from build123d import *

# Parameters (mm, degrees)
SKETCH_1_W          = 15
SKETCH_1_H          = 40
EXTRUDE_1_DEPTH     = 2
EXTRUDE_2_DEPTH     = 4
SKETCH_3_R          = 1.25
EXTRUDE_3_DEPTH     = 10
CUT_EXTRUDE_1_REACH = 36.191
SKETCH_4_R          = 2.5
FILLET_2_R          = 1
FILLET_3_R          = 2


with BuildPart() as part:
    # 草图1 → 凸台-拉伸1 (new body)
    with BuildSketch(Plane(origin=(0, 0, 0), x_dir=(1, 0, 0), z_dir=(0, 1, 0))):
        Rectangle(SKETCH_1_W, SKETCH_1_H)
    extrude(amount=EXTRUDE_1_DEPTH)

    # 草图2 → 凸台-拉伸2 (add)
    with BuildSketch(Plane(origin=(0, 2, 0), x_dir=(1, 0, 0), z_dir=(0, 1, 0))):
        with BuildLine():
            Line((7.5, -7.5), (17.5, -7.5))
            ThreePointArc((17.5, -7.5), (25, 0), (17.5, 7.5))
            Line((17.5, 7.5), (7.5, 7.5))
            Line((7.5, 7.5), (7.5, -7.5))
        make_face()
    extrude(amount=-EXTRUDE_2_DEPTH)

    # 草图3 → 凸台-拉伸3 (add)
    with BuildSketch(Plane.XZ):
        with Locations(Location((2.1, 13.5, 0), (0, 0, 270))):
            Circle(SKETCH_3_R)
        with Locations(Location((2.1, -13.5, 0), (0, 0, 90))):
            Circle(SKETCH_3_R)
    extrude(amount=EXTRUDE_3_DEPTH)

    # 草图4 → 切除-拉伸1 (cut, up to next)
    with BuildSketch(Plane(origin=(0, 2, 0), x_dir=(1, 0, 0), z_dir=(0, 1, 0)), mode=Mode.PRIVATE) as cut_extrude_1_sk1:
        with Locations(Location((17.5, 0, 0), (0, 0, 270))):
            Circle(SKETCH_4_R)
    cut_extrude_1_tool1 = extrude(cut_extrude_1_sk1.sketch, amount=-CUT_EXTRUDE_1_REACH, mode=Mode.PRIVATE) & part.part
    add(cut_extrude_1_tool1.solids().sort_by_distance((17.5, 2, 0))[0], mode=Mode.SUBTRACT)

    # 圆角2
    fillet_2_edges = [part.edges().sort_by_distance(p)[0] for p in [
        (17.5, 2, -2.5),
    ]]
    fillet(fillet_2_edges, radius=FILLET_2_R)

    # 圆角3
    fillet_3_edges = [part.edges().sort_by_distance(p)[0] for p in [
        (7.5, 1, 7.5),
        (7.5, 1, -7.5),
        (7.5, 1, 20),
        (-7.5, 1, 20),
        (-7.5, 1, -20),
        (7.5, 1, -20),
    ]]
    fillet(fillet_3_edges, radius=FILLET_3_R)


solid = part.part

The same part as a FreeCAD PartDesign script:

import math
import FreeCAD as App
import Part
import Sketcher
from FreeCAD import Vector
Q = App.Units.Quantity


def edges_at(feature, points):
    """Names of the edges that pass closest to the given points."""
    edges = feature.Shape.Edges
    near = lambda p: min(range(len(edges)), key=lambda i: edges[i].distToShape(Part.Vertex(*p))[0])
    return sorted({f"Edge{near(p) + 1}" for p in points})

doc = App.newDocument("Part")
body = doc.addObject("PartDesign::Body", "Body")

# Sketch on XZ plane
sketch1 = doc.addObject("Sketcher::SketchObject", "Sketch")
body.addObject(sketch1)
sketch1.AttachmentSupport = (doc.XZ_Plane, [""])
sketch1.MapMode = "FlatFace"
sketch1.addGeometry(Part.LineSegment(Vector(-7.5, -20, 0), Vector(-7.5, 20, 0)), False)
sketch1.addGeometry(Part.LineSegment(Vector(-7.5, 20, 0), Vector(7.5, 20, 0)), False)
sketch1.addGeometry(Part.LineSegment(Vector(7.5, 20, 0), Vector(7.5, -20, 0)), False)
sketch1.addGeometry(Part.LineSegment(Vector(7.5, -20, 0), Vector(-7.5, -20, 0)), False)
sketch1.addConstraint(Sketcher.Constraint("Coincident", 0, 2, 1, 1))
sketch1.addConstraint(Sketcher.Constraint("Coincident", 1, 2, 2, 1))
sketch1.addConstraint(Sketcher.Constraint("Coincident", 2, 2, 3, 1))
sketch1.addConstraint(Sketcher.Constraint("Coincident", 3, 2, 0, 1))
sketch1.addConstraint(Sketcher.Constraint("Vertical", 0))
sketch1.addConstraint(Sketcher.Constraint("Horizontal", 1))
sketch1.addConstraint(Sketcher.Constraint("Vertical", 2))
sketch1.addConstraint(Sketcher.Constraint("Horizontal", 3))
sketch1.addConstraint(Sketcher.Constraint("Symmetric", 0, 2, 2, 2, -1, 1))
sketch1.addConstraint(Sketcher.Constraint("DistanceX", 1, 1, 1, 2, Q("15 mm")))
sketch1.addConstraint(Sketcher.Constraint("DistanceY", 0, 1, 0, 2, Q("40 mm")))
pad1 = doc.addObject("PartDesign::Pad", "Pad")
body.addObject(pad1)
pad1.Profile = sketch1
pad1.Length = 2
pad1.Reversed = True

# Sketch on XZ plane
sketch2 = doc.addObject("Sketcher::SketchObject", "Sketch001")
body.addObject(sketch2)
sketch2.AttachmentSupport = (doc.XZ_Plane, [""])
sketch2.MapMode = "FlatFace"
sketch2.AttachmentOffset = App.Placement(Vector(0, 0, -2), App.Rotation())
sketch2.addGeometry(Part.LineSegment(Vector(7.5, 7.5, 0), Vector(17.5, 7.5, 0)), False)
sketch2.addGeometry(Part.ArcOfCircle(Part.Circle(Vector(17.5, 0, 0), Vector(0, 0, 1), 7.5), math.radians(-90), math.radians(90)), False)
sketch2.addGeometry(Part.LineSegment(Vector(17.5, -7.5, 0), Vector(7.5, -7.5, 0)), False)
sketch2.addGeometry(Part.LineSegment(Vector(7.5, -7.5, 0), Vector(7.5, 7.5, 0)), False)
sketch2.addConstraint(Sketcher.Constraint("Tangent", 0, 2, 1, 2))
sketch2.addConstraint(Sketcher.Constraint("Tangent", 1, 1, 2, 1))
sketch2.addConstraint(Sketcher.Constraint("Coincident", 2, 2, 3, 1))
sketch2.addConstraint(Sketcher.Constraint("Coincident", 3, 2, 0, 1))
sketch2.addConstraint(Sketcher.Constraint("Horizontal", 0))
sketch2.addConstraint(Sketcher.Constraint("Horizontal", 2))
sketch2.addConstraint(Sketcher.Constraint("Vertical", 3))
sketch2.addConstraint(Sketcher.Constraint("PointOnObject", 1, 3, -1))
sketch2.addConstraint(Sketcher.Constraint("Radius", 1, Q("7.5 mm")))
sketch2.addConstraint(Sketcher.Constraint("DistanceX", 0, 1, 0, 2, Q("10 mm")))
sketch2.addConstraint(Sketcher.Constraint("DistanceX", -1, 1, 1, 3, Q("17.5 mm")))
pad2 = doc.addObject("PartDesign::Pad", "Pad001")
body.addObject(pad2)
pad2.Profile = sketch2
pad2.Length = 4

# Sketch on XZ plane
sketch3 = doc.addObject("Sketcher::SketchObject", "Sketch002")
body.addObject(sketch3)
sketch3.AttachmentSupport = (doc.XZ_Plane, [""])
sketch3.MapMode = "FlatFace"
sketch3.addGeometry(Part.Circle(Vector(2.1, 13.5, 0), Vector(0, 0, 1), 1.25), False)
sketch3.addGeometry(Part.Circle(Vector(2.1, -13.5, 0), Vector(0, 0, 1), 1.25), False)
sketch3.addConstraint(Sketcher.Constraint("Equal", 0, 1))
sketch3.addConstraint(Sketcher.Constraint("Symmetric", 0, 3, 1, 3, -1))
sketch3.addConstraint(Sketcher.Constraint("Diameter", 0, Q("2.5 mm")))
sketch3.addConstraint(Sketcher.Constraint("DistanceY", 1, 3, 0, 3, Q("27 mm")))
sketch3.addConstraint(Sketcher.Constraint("DistanceX", -1, 1, 0, 3, Q("2.1 mm")))
pad3 = doc.addObject("PartDesign::Pad", "Pad002")
body.addObject(pad3)
pad3.Profile = sketch3
pad3.Length = 10

# Sketch on XZ plane
sketch4 = doc.addObject("Sketcher::SketchObject", "Sketch003")
body.addObject(sketch4)
sketch4.AttachmentSupport = (doc.XZ_Plane, [""])
sketch4.MapMode = "FlatFace"
sketch4.AttachmentOffset = App.Placement(Vector(0, 0, -2), App.Rotation())
sketch4.addGeometry(Part.Circle(Vector(17.5, 0, 0), Vector(0, 0, 1), 2.5), False)
sketch4.addConstraint(Sketcher.Constraint("PointOnObject", 0, 3, -1))
sketch4.addConstraint(Sketcher.Constraint("Diameter", 0, Q("5 mm")))
sketch4.addConstraint(Sketcher.Constraint("DistanceX", -1, 1, 0, 3, Q("17.5 mm")))
pocket1 = doc.addObject("PartDesign::Pocket", "Pocket")
body.addObject(pocket1)
pocket1.Profile = sketch4
pocket1.Type = "UpToFirst"
pocket1.Reversed = True
doc.recompute()

fillet = doc.addObject("PartDesign::Fillet", "Fillet")
body.addObject(fillet)
fillet.Base = (pocket1, edges_at(pocket1, [(17.5, 2, -2.5)]))
fillet.Radius = 1
doc.recompute()

fillet2 = doc.addObject("PartDesign::Fillet", "Fillet001")
body.addObject(fillet2)
fillet2.Base = (fillet, edges_at(fillet, [
    (7.5, 1, 7.5),
    (7.5, 1, -7.5),
    (7.5, 1, 20),
    (-7.5, 1, 20),
    (-7.5, 1, -20),
    (7.5, 1, -20),
]))
fillet2.Radius = 2

doc.recompute()
